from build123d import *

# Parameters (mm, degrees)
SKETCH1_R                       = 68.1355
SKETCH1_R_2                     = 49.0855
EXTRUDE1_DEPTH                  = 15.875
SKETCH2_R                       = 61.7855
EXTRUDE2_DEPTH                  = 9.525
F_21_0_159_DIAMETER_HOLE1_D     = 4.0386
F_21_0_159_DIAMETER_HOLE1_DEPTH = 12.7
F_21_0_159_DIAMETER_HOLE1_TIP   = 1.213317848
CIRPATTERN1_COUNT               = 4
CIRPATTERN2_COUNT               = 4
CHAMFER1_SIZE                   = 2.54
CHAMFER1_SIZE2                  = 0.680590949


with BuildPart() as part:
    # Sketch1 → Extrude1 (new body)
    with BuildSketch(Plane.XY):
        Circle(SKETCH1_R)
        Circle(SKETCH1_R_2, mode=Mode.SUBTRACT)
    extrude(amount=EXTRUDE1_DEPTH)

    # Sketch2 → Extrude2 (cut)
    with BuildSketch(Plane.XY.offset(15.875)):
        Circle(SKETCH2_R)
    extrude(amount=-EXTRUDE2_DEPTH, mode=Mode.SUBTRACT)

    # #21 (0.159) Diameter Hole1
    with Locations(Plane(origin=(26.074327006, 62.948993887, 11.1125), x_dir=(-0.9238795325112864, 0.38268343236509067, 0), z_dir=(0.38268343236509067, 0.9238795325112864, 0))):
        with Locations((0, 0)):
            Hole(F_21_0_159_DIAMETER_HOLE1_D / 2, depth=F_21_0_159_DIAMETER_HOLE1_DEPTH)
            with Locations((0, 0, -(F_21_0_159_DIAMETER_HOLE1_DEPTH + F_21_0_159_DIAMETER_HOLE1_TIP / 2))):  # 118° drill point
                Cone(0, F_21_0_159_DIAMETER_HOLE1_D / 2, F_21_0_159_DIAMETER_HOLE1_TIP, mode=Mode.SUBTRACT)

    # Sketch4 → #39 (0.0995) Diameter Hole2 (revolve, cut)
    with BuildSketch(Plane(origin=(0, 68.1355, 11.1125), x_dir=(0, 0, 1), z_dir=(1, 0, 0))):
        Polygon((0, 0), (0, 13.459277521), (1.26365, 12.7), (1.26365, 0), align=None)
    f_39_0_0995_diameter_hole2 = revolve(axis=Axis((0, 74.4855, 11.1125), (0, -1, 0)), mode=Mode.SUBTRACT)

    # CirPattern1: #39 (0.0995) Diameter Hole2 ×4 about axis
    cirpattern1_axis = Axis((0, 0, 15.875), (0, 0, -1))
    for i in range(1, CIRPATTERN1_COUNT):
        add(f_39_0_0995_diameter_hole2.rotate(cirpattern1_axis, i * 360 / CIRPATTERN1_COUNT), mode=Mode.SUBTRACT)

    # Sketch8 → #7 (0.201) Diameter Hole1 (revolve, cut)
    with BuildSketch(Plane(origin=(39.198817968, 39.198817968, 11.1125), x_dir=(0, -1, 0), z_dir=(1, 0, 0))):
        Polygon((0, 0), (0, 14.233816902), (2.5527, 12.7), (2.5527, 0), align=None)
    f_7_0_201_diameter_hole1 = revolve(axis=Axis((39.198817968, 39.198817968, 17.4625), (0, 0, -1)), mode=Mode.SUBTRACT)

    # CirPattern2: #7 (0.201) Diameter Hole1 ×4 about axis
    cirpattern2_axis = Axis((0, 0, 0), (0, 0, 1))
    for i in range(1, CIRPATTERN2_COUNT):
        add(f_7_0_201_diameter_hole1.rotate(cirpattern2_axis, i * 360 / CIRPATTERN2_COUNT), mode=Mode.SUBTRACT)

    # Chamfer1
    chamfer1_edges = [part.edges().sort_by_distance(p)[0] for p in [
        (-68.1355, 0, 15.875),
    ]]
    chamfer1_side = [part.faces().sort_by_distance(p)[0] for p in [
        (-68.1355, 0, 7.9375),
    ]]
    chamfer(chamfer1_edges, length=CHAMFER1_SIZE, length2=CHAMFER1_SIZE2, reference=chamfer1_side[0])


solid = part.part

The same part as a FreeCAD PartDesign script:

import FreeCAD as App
import Part
import Sketcher

V = App.Vector
Q = App.Units.Quantity


def edges_at(feature, points):
    """Names of the edges that pass closest to the given points."""
    edges = feature.Shape.Edges
    near = lambda p: min(range(len(edges)), key=lambda i: edges[i].distToShape(Part.Vertex(*p))[0])
    return sorted({f"Edge{near(p) + 1}" for p in points})


def add_polygon(sketch, points):
    """Adds a closed chain of lines whose ends are joined by coincident constraints."""
    first, n = sketch.GeometryCount, len(points)
    for a, b in zip(points, points[1:] + points[:1]):
        sketch.addGeometry(Part.LineSegment(App.Vector(*a, 0), App.Vector(*b, 0)), False)
    for i in range(n):
        sketch.addConstraint(Sketcher.Constraint("Coincident", first + i, 2, first + (i + 1) % n, 1))

doc = App.newDocument("Part")
body = doc.addObject("PartDesign::Body", "Body")

# Sketch on XY plane
sketch1 = body.newObject("Sketcher::SketchObject", "Sketch")
sketch1.AttachmentSupport = (doc.getObject("XY_Plane"), [""])
sketch1.MapMode = "FlatFace"
sketch1.addGeometry(Part.Circle(V(0, 0, 0), V(0, 0, 1), 68), False)
sketch1.addGeometry(Part.Circle(V(0, 0, 0), V(0, 0, 1), 49), False)
sketch1.addConstraint(Sketcher.Constraint("Coincident", 0, 3, -1, 1))
sketch1.addConstraint(Sketcher.Constraint("Coincident", 1, 3, -1, 1))
sketch1.addConstraint(Sketcher.Constraint("Diameter", 0, Q("5.365 in")))
sketch1.addConstraint(Sketcher.Constraint("Diameter", 1, Q("3.865 in")))
pad1 = body.newObject("PartDesign::Pad", "Pad")
pad1.Profile = sketch1
pad1.Length = Q("0.625 in")

# Sketch on XY plane
sketch2 = body.newObject("Sketcher::SketchObject", "Sketch001")
sketch2.AttachmentSupport = (doc.getObject("XY_Plane"), [""])
sketch2.MapMode = "FlatFace"
sketch2.AttachmentOffset = App.Placement(V(0, 0, 0.625 * 25.4), App.Rotation())
sketch2.addGeometry(Part.Circle(V(0, 0, 0), V(0, 0, 1), 62), False)
sketch2.addConstraint(Sketcher.Constraint("Coincident", 0, 3, -1, 1))
sketch2.addConstraint(Sketcher.Constraint("Diameter", 0, Q("4.865 in")))
pocket1 = body.newObject("PartDesign::Pocket", "Pocket")
pocket1.Profile = sketch2
pocket1.Length = Q("0.375 in")

# Sketch on an angled plane
sketch3 = body.newObject("Sketcher::SketchObject", "Sketch002")
sketch3.Placement = App.Placement(V(26.074327, 62.948994, 0), App.Rotation(V(-0.923879533, 0.382683432, 0), V(0, 0, 1.000000001), V(0.382683432, 0.923879533, 0), "ZXY"))
sketch3.addGeometry(Part.Circle(V(0, 11.1, 0), V(0, 0, 1), 2), False)
sketch3.addConstraint(Sketcher.Constraint("PointOnObject", 0, 3, -2))
sketch3.addConstraint(Sketcher.Constraint("Diameter", 0, Q("0.159 in")))
sketch3.addConstraint(Sketcher.Constraint("DistanceY", -1, 1, 0, 3, Q("0.4375 in")))
doc.recompute()
hole = body.newObject("PartDesign::Hole", "Hole")
hole.Profile = sketch3
hole.ThreadType = "None"
hole.Diameter = Q("0.159 in")
hole.DepthType = "Dimension"
hole.Depth = Q("0.5 in")
hole.DrillPoint = "Angled"
hole.DrillPointAngle = 118

# Sketch on YZ plane
sketch4 = body.newObject("Sketcher::SketchObject", "Sketch003")
sketch4.AttachmentSupport = (doc.getObject("YZ_Plane"), [""])
sketch4.MapMode = "FlatFace"
add_polygon(sketch4, [(54.7, 11.1), (68.1, 11.1), (68.1, 12.4), (55.4, 12.4)])  # lines 0-3
sketch4.addGeometry(Part.LineSegment(V(68.1, 11.1, 0), V(54.7, 11.1, 0)), True)  # axis
sketch4.addConstraint(Sketcher.Constraint("Horizontal", 0))
sketch4.addConstraint(Sketcher.Constraint("Vertical", 1))
sketch4.addConstraint(Sketcher.Constraint("Horizontal", 2))
sketch4.addConstraint(Sketcher.Constraint("Horizontal", 4))
sketch4.addConstraint(Sketcher.Constraint("Coincident", 4, 1, 0, 2))
sketch4.addConstraint(Sketcher.Constraint("Equal", 0, 4))
sketch4.addConstraint(Sketcher.Constraint("DistanceX", 2, 2, 2, 1, Q("0.5 in")))
sketch4.addConstraint(Sketcher.Constraint("Angle", 3, Q("-121 deg")))
sketch4.addConstraint(Sketcher.Constraint("DistanceY", -1, 1, 0, 2, Q("0.4375 in")))
sketch4.addConstraint(Sketcher.Constraint("DistanceX", -1, 1, 0, 2, Q("2.6825 in")))
sketch4.addConstraint(Sketcher.Constraint("DistanceY", 1, 1, 1, 2, Q("1.26365 mm")))
groove = body.newObject("PartDesign::Groove", "Groove")
groove.Profile = sketch4
groove.ReferenceAxis = (sketch4, ["Axis0"])
groove.Angle = 360
doc.recompute()

polarpattern = body.newObject("PartDesign::PolarPattern", "PolarPattern")
polarpattern.Originals = [groove]
polarpattern.Axis = (doc.getObject("Z_Axis"), [""])
polarpattern.Angle = 360
polarpattern.Occurrences = 4
body.Tip = polarpattern

# Sketch on YZ plane
sketch5 = body.newObject("Sketcher::SketchObject", "Sketch004")
sketch5.AttachmentSupport = (doc.getObject("YZ_Plane"), [""])
sketch5.MapMode = "FlatFace"
sketch5.AttachmentOffset = App.Placement(V(0, 0, 39.198818), App.Rotation())
add_polygon(sketch5, [(39.2, -3.1), (39.2, 11.1), (36.6, 11.1), (36.6, -1.6)])  # lines 0-3
sketch5.addGeometry(Part.LineSegment(V(39.2, 11.1, 0), V(39.2, -3.1, 0)), True)  # axis
sketch5.addConstraint(Sketcher.Constraint("Vertical", 0))
sketch5.addConstraint(Sketcher.Constraint("Horizontal", 1))
sketch5.addConstraint(Sketcher.Constraint("Vertical", 2))
sketch5.addConstraint(Sketcher.Constraint("Vertical", 4))
sketch5.addConstraint(Sketcher.Constraint("Coincident", 4, 1, 0, 2))
sketch5.addConstraint(Sketcher.Constraint("Equal", 0, 4))
sketch5.addConstraint(Sketcher.Constraint("DistanceY", 2, 2, 2, 1, Q("0.5 in")))
sketch5.addConstraint(Sketcher.Constraint("Angle", 3, Q("-31 deg")))
sketch5.addConstraint(Sketcher.Constraint("DistanceX", 1, 2, 1, 1, Q("0.1005 in")))
sketch5.addConstraint(Sketcher.Constraint("DistanceY", -1, 1, 0, 2, Q("0.4375 in")))
sketch5.addConstraint(Sketcher.Constraint("DistanceX", -1, 1, 0, 2, Q("39.198818 mm")))
groove2 = body.newObject("PartDesign::Groove", "Groove001")
groove2.Profile = sketch5
groove2.ReferenceAxis = (sketch5, ["Axis0"])
groove2.Angle = 360
doc.recompute()

polarpattern2 = body.newObject("PartDesign::PolarPattern", "PolarPattern001")
polarpattern2.Originals = [groove2]
polarpattern2.Axis = (doc.getObject("Z_Axis"), [""])
polarpattern2.Angle = 360
polarpattern2.Occurrences = 4
body.Tip = polarpattern2
doc.recompute()

chamfer = body.newObject("PartDesign::Chamfer", "Chamfer")
chamfer.Base = (polarpattern2, edges_at(polarpattern2, [(-68.135, 0, 15.875)]))
chamfer.ChamferType = "Two distances"
chamfer.Size = Q("0.1 in")
chamfer.Size2 = 0.680591

doc.recompute()
